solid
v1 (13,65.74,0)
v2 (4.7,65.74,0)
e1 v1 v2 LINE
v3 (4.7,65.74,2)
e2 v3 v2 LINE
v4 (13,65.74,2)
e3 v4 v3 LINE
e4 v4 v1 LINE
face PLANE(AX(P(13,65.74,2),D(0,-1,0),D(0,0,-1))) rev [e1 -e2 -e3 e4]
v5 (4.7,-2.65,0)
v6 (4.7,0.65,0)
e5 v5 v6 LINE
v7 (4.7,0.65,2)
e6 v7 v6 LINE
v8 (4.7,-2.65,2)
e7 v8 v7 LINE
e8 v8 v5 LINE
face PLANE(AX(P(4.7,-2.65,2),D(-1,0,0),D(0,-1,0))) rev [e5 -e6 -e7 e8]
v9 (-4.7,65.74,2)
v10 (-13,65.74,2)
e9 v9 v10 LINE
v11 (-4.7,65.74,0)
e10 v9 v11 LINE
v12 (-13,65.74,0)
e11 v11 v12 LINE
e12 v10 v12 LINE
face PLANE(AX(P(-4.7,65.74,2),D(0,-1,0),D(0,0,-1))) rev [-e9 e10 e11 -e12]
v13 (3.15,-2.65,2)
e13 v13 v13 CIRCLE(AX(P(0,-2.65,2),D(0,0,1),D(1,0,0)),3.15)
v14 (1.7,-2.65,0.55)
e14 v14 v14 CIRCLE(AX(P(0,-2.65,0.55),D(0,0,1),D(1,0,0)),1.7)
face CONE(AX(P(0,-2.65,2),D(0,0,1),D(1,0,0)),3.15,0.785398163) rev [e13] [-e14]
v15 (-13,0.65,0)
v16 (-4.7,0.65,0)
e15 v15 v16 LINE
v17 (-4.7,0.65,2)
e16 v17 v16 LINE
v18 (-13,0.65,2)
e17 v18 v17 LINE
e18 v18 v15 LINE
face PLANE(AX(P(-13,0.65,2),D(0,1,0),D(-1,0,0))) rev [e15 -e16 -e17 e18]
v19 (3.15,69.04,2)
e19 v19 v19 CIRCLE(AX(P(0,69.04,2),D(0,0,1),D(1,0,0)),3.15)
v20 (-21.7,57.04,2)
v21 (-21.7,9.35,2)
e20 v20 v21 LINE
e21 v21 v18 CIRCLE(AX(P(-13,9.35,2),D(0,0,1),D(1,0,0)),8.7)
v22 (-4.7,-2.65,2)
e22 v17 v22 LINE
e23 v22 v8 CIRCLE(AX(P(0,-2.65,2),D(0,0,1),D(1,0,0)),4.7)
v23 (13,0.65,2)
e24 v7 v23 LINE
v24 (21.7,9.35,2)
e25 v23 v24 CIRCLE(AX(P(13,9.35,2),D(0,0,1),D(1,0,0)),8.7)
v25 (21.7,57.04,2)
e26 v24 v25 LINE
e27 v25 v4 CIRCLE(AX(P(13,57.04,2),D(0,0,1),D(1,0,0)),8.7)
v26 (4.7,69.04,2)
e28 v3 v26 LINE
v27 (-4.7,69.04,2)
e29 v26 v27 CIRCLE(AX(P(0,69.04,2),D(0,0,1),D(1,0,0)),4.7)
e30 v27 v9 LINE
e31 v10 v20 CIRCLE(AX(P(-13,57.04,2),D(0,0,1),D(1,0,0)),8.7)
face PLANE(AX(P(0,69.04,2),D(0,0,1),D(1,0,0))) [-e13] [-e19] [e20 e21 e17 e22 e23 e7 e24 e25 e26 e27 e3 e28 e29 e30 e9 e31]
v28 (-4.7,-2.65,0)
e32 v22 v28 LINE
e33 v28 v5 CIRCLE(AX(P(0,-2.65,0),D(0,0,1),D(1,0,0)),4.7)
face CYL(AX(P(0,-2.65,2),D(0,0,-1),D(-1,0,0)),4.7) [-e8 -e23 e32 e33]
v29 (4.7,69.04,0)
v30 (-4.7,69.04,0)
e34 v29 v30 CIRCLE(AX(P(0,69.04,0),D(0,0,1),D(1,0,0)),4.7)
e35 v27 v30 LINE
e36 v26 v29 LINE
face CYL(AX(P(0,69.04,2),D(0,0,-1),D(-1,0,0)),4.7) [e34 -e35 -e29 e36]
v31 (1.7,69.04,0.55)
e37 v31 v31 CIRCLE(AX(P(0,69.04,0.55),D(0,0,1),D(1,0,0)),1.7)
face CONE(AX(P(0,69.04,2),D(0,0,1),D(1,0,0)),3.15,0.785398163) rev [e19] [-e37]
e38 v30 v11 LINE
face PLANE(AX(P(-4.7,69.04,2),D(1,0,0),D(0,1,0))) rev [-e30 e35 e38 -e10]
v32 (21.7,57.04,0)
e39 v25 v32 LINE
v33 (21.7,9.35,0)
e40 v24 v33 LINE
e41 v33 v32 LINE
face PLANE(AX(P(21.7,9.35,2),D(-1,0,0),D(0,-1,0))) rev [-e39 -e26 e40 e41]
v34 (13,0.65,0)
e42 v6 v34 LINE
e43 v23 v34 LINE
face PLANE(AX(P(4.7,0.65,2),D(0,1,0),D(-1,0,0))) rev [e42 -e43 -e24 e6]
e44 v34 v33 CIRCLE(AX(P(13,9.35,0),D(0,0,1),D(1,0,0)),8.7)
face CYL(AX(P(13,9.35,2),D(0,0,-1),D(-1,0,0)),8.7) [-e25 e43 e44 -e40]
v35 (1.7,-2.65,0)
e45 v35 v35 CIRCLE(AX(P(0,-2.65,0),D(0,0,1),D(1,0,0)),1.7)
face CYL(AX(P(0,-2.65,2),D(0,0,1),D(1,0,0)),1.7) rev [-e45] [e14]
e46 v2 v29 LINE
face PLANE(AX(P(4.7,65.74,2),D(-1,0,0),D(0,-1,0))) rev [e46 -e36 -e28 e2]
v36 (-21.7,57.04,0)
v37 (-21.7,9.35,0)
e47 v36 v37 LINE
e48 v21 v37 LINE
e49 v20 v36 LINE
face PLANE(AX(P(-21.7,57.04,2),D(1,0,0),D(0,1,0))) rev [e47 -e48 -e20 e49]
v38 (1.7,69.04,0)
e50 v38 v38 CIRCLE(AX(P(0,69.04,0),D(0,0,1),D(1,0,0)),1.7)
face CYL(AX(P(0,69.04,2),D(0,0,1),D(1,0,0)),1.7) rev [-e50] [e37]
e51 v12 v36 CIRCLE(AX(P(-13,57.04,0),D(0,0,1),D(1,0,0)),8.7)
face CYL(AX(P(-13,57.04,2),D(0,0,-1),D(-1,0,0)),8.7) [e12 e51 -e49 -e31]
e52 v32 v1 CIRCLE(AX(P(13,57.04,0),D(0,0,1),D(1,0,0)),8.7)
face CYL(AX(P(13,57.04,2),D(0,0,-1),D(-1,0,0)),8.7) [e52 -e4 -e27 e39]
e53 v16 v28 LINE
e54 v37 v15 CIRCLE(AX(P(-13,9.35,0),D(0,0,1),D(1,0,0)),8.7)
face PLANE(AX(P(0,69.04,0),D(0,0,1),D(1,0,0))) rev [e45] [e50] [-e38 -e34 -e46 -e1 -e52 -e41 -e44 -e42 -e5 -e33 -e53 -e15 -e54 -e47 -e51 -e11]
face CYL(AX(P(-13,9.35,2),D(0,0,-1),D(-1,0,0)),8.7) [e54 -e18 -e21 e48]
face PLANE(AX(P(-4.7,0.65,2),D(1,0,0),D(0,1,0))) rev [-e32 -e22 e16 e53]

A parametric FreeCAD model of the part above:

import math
import FreeCAD as App
import Part
import Sketcher
from FreeCAD import Vector
Q = App.Units.Quantity


def add_polygon(sketch, points):
    """Adds a closed chain of lines whose ends are joined by coincident constraints."""
    first, n = sketch.GeometryCount, len(points)
    for a, b in zip(points, points[1:] + points[:1]):
        sketch.addGeometry(Part.LineSegment(App.Vector(*a, 0), App.Vector(*b, 0)), False)
    for i in range(n):
        sketch.addConstraint(Sketcher.Constraint("Coincident", first + i, 2, first + (i + 1) % n, 1))

doc = App.newDocument("Part")
params = doc.addObject("Spreadsheet::Sheet", "Params")
for row, (alias, value) in enumerate([
    ("sketch1_radius", "8.7 mm"),
    ("sketch1_radius2", "4.7 mm"),
    ("sketch1_width", "8.3 mm"),
    ("sketch1_height", "3.3 mm"),
    ("sketch1_height2", "47.69 mm"),
    ("pad1_length", "2 mm"),
    ("sketch2_height", "2 mm"),
    ("sketch2_width", "1.7 mm"),
    ("sketch2_width2", "3.15 mm"),
    ("groove_angle", "360 deg"),
    ("linearpattern_pitch", "71.69 mm"),
], start=1):
    params.set(f"A{row}", alias)
    params.set(f"B{row}", "=" + value)
    params.setAlias(f"B{row}", alias)

body = doc.addObject("PartDesign::Body", "Body")

# Sketch on XY plane
sketch1 = body.newObject("Sketcher::SketchObject", "Sketch")
sketch1.AttachmentSupport = (doc.getObject("XY_Plane"), [""])
sketch1.MapMode = "FlatFace"
sketch1.addGeometry(Part.LineSegment(Vector(-4.7, 69.04, 0), Vector(-4.7, 65.74, 0)), False)
sketch1.addGeometry(Part.LineSegment(Vector(-4.7, 65.74, 0), Vector(-13, 65.74, 0)), False)
sketch1.addGeometry(Part.ArcOfCircle(Part.Circle(Vector(-13, 57.04, 0), Vector(0, 0, 1), 8.7), math.radians(90), math.radians(180)), False)
sketch1.addGeometry(Part.LineSegment(Vector(-21.7, 57.04, 0), Vector(-21.7, 9.35, 0)), False)
sketch1.addGeometry(Part.ArcOfCircle(Part.Circle(Vector(-13, 9.35, 0), Vector(0, 0, 1), 8.7), math.radians(-180), math.radians(-90)), False)
sketch1.addGeometry(Part.LineSegment(Vector(-13, 0.65, 0), Vector(-4.7, 0.65, 0)), False)
sketch1.addGeometry(Part.LineSegment(Vector(-4.7, 0.65, 0), Vector(-4.7, -2.65, 0)), False)
sketch1.addGeometry(Part.ArcOfCircle(Part.Circle(Vector(0, -2.65, 0), Vector(0, 0, 1), 4.7), math.radians(180), math.radians(360)), False)
sketch1.addGeometry(Part.LineSegment(Vector(4.7, -2.65, 0), Vector(4.7, 0.65, 0)), False)
sketch1.addGeometry(Part.LineSegment(Vector(4.7, 0.65, 0), Vector(13, 0.65, 0)), False)
sketch1.addGeometry(Part.ArcOfCircle(Part.Circle(Vector(13, 9.35, 0), Vector(0, 0, 1), 8.7), math.radians(-90), math.radians(0)), False)
sketch1.addGeometry(Part.LineSegment(Vector(21.7, 9.35, 0), Vector(21.7, 57.04, 0)), False)
sketch1.addGeometry(Part.ArcOfCircle(Part.Circle(Vector(13, 57.04, 0), Vector(0, 0, 1), 8.7), math.radians(0), math.radians(90)), False)
sketch1.addGeometry(Part.LineSegment(Vector(13, 65.74, 0), Vector(4.7, 65.74, 0)), False)
sketch1.addGeometry(Part.LineSegment(Vector(4.7, 65.74, 0), Vector(4.7, 69.04, 0)), False)
sketch1.addGeometry(Part.ArcOfCircle(Part.Circle(Vector(0, 69.04, 0), Vector(0, 0, 1), 4.7), math.radians(0), math.radians(180)), False)
sketch1.addConstraint(Sketcher.Constraint("Coincident", 0, 2, 1, 1))
sketch1.addConstraint(Sketcher.Constraint("Tangent", 1, 2, 2, 1))
sketch1.addConstraint(Sketcher.Constraint("Tangent", 2, 2, 3, 1))
sketch1.addConstraint(Sketcher.Constraint("Tangent", 3, 2, 4, 1))
sketch1.addConstraint(Sketcher.Constraint("Tangent", 4, 2, 5, 1))
sketch1.addConstraint(Sketcher.Constraint("Coincident", 5, 2, 6, 1))
sketch1.addConstraint(Sketcher.Constraint("Tangent", 6, 2, 7, 1))
sketch1.addConstraint(Sketcher.Constraint("Tangent", 7, 2, 8, 1))
sketch1.addConstraint(Sketcher.Constraint("Coincident", 8, 2, 9, 1))
sketch1.addConstraint(Sketcher.Constraint("Tangent", 9, 2, 10, 1))
sketch1.addConstraint(Sketcher.Constraint("Tangent", 10, 2, 11, 1))
sketch1.addConstraint(Sketcher.Constraint("Tangent", 11, 2, 12, 1))
sketch1.addConstraint(Sketcher.Constraint("Tangent", 12, 2, 13, 1))
sketch1.addConstraint(Sketcher.Constraint("Coincident", 13, 2, 14, 1))
sketch1.addConstraint(Sketcher.Constraint("Tangent", 14, 2, 15, 1))
sketch1.addConstraint(Sketcher.Constraint("Tangent", 15, 2, 0, 1))
sketch1.addConstraint(Sketcher.Constraint("Vertical", 0))
sketch1.addConstraint(Sketcher.Constraint("Horizontal", 1))
sketch1.addConstraint(Sketcher.Constraint("Vertical", 3))
sketch1.addConstraint(Sketcher.Constraint("Horizontal", 5))
sketch1.addConstraint(Sketcher.Constraint("Vertical", 6))
sketch1.addConstraint(Sketcher.Constraint("Vertical", 8))
sketch1.addConstraint(Sketcher.Constraint("Horizontal", 9))
sketch1.addConstraint(Sketcher.Constraint("Vertical", 11))
sketch1.addConstraint(Sketcher.Constraint("Horizontal", 13))
sketch1.addConstraint(Sketcher.Constraint("Vertical", 14))
sketch1.addConstraint(Sketcher.Constraint("Equal", 2, 4))
sketch1.addConstraint(Sketcher.Constraint("Equal", 4, 10))
sketch1.addConstraint(Sketcher.Constraint("Equal", 10, 12))
sketch1.addConstraint(Sketcher.Constraint("Equal", 7, 15))
sketch1.addConstraint(Sketcher.Constraint("Symmetric", 4, 3, 10, 3, -2))
sketch1.addConstraint(Sketcher.Constraint("Symmetric", 0, 2, 13, 2, -2))
sketch1.addConstraint(Sketcher.Constraint("PointOnObject", 7, 3, -2))
sketch1.addConstraint(Sketcher.Constraint("Equal", 0, 6))
sketch1.addConstraint(Sketcher.Constraint("Radius", 2, Q("8.7 mm")))
sketch1.addConstraint(Sketcher.Constraint("Radius", 7, Q("4.7 mm")))
sketch1.addConstraint(Sketcher.Constraint("DistanceX", 1, 2, 1, 1, Q("8.3 mm")))
sketch1.addConstraint(Sketcher.Constraint("DistanceY", 0, 2, 0, 1, Q("3.3 mm")))
sketch1.addConstraint(Sketcher.Constraint("DistanceY", 3, 2, 3, 1, Q("47.69 mm")))
sketch1.addConstraint(Sketcher.Constraint("DistanceY", -1, 1, 2, 3, Q("57.04 mm")))
sketch1.setExpression("Constraints[34]", "Params.sketch1_radius")
sketch1.setExpression("Constraints[35]", "Params.sketch1_radius2")
sketch1.setExpression("Constraints[36]", "Params.sketch1_width")
sketch1.setExpression("Constraints[37]", "Params.sketch1_height")
sketch1.setExpression("Constraints[38]", "Params.sketch1_height2")
pad1 = body.newObject("PartDesign::Pad", "Pad")
pad1.Profile = sketch1
pad1.setExpression("Length", "Params.pad1_length")

# Sketch on YZ plane
sketch2 = body.newObject("Sketcher::SketchObject", "Sketch001")
sketch2.AttachmentSupport = (doc.getObject("YZ_Plane"), [""])
sketch2.MapMode = "FlatFace"
add_polygon(sketch2, [(69.04, 0), (69.04, 2), (65.89, 2), (67.34, 0.55), (67.34, 0)])  # lines 0-4
sketch2.addGeometry(Part.LineSegment(Vector(69.04, 2, 0), Vector(69.04, 0, 0)), True)  # axis
sketch2.addConstraint(Sketcher.Constraint("Vertical", 0))
sketch2.addConstraint(Sketcher.Constraint("Horizontal", 1))
sketch2.addConstraint(Sketcher.Constraint("Vertical", 3))
sketch2.addConstraint(Sketcher.Constraint("Horizontal", 4))
sketch2.addConstraint(Sketcher.Constraint("Vertical", 5))
sketch2.addConstraint(Sketcher.Constraint("Coincident", 5, 1, 0, 2))
sketch2.addConstraint(Sketcher.Constraint("PointOnObject", 3, 2, -1))
sketch2.addConstraint(Sketcher.Constraint("PointOnObject", 5, 2, -1))
sketch2.addConstraint(Sketcher.Constraint("DistanceY", 0, 1, 0, 2, Q("2 mm")))
sketch2.addConstraint(Sketcher.Constraint("Angle", 2, Q("-45 deg")))
sketch2.addConstraint(Sketcher.Constraint("DistanceX", 4, 1, 4, 2, Q("1.7 mm")))
sketch2.addConstraint(Sketcher.Constraint("DistanceX", 1, 2, 1, 1, Q("3.15 mm")))
sketch2.addConstraint(Sketcher.Constraint("DistanceX", -1, 1, 0, 2, Q("69.04 mm")))
sketch2.setExpression("Constraints[13]", "Params.sketch2_height")
sketch2.setExpression("Constraints[15]", "Params.sketch2_width")
sketch2.setExpression("Constraints[16]", "Params.sketch2_width2")
groove = body.newObject("PartDesign::Groove", "Groove")
groove.Profile = sketch2
groove.ReferenceAxis = (sketch2, ["Axis0"])
groove.setExpression("Angle", "Params.groove_angle")
doc.recompute()

linearpattern = body.newObject("PartDesign::LinearPattern", "LinearPattern")
linearpattern.Originals = [groove]
linearpattern.Direction = (doc.getObject("Y_Axis"), [""])
linearpattern.Mode = "offset"
linearpattern.setExpression("Offset", "Params.linearpattern_pitch")
linearpattern.Occurrences = 2
linearpattern.Reversed = True
body.Tip = linearpattern

doc.recompute()
